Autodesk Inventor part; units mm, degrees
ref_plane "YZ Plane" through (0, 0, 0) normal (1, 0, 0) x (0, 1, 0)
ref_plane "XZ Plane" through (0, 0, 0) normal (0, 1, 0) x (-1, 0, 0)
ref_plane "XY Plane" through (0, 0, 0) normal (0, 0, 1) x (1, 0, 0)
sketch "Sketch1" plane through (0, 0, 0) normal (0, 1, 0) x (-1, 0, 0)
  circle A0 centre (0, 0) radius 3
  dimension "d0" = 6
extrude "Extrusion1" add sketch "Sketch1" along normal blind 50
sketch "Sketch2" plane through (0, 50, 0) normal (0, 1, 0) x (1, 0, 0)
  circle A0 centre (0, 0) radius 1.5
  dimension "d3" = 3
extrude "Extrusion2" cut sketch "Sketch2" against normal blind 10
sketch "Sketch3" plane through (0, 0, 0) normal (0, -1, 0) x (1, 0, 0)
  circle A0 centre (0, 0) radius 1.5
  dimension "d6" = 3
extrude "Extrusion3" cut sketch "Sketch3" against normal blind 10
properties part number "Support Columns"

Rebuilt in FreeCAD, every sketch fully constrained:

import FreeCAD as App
import Part
import Sketcher

V = App.Vector
Q = App.Units.Quantity

doc = App.newDocument("Part")
body = doc.addObject("PartDesign::Body", "Body")

# Sketch on XZ plane
sketch1 = body.newObject("Sketcher::SketchObject", "Sketch")
sketch1.AttachmentSupport = (doc.getObject("XZ_Plane"), [""])
sketch1.MapMode = "FlatFace"
sketch1.addGeometry(Part.Circle(V(0, 0, 0), V(0, 0, 1), 3), False)
sketch1.addConstraint(Sketcher.Constraint("Coincident", 0, 3, -1, 1))
sketch1.addConstraint(Sketcher.Constraint("Diameter", 0, Q("6 mm")))
pad1 = body.newObject("PartDesign::Pad", "Pad")
pad1.Profile = sketch1
pad1.Length = 50
pad1.Reversed = True

# Sketch on XZ plane
sketch2 = body.newObject("Sketcher::SketchObject", "Sketch001")
sketch2.AttachmentSupport = (doc.getObject("XZ_Plane"), [""])
sketch2.MapMode = "FlatFace"
sketch2.AttachmentOffset = App.Placement(V(0, 0, -50), App.Rotation())
sketch2.addGeometry(Part.Circle(V(0, 0, 0), V(0, 0, 1), 1.5), False)
sketch2.addConstraint(Sketcher.Constraint("Coincident", 0, 3, -1, 1))
sketch2.addConstraint(Sketcher.Constraint("Diameter", 0, Q("3 mm")))
pocket1 = body.newObject("PartDesign::Pocket", "Pocket")
pocket1.Profile = sketch2
pocket1.Length = 10
pocket1.Reversed = True

# Sketch on XZ plane
sketch3 = body.newObject("Sketcher::SketchObject", "Sketch002")
sketch3.AttachmentSupport = (doc.getObject("XZ_Plane"), [""])
sketch3.MapMode = "FlatFace"
sketch3.addGeometry(Part.Circle(V(0, 0, 0), V(0, 0, 1), 1.5), False)
sketch3.addConstraint(Sketcher.Constraint("Coincident", 0, 3, -1, 1))
sketch3.addConstraint(Sketcher.Constraint("Diameter", 0, Q("3 mm")))
pocket2 = body.newObject("PartDesign::Pocket", "Pocket001")
pocket2.Profile = sketch3
pocket2.Length = 10

doc.recompute()
